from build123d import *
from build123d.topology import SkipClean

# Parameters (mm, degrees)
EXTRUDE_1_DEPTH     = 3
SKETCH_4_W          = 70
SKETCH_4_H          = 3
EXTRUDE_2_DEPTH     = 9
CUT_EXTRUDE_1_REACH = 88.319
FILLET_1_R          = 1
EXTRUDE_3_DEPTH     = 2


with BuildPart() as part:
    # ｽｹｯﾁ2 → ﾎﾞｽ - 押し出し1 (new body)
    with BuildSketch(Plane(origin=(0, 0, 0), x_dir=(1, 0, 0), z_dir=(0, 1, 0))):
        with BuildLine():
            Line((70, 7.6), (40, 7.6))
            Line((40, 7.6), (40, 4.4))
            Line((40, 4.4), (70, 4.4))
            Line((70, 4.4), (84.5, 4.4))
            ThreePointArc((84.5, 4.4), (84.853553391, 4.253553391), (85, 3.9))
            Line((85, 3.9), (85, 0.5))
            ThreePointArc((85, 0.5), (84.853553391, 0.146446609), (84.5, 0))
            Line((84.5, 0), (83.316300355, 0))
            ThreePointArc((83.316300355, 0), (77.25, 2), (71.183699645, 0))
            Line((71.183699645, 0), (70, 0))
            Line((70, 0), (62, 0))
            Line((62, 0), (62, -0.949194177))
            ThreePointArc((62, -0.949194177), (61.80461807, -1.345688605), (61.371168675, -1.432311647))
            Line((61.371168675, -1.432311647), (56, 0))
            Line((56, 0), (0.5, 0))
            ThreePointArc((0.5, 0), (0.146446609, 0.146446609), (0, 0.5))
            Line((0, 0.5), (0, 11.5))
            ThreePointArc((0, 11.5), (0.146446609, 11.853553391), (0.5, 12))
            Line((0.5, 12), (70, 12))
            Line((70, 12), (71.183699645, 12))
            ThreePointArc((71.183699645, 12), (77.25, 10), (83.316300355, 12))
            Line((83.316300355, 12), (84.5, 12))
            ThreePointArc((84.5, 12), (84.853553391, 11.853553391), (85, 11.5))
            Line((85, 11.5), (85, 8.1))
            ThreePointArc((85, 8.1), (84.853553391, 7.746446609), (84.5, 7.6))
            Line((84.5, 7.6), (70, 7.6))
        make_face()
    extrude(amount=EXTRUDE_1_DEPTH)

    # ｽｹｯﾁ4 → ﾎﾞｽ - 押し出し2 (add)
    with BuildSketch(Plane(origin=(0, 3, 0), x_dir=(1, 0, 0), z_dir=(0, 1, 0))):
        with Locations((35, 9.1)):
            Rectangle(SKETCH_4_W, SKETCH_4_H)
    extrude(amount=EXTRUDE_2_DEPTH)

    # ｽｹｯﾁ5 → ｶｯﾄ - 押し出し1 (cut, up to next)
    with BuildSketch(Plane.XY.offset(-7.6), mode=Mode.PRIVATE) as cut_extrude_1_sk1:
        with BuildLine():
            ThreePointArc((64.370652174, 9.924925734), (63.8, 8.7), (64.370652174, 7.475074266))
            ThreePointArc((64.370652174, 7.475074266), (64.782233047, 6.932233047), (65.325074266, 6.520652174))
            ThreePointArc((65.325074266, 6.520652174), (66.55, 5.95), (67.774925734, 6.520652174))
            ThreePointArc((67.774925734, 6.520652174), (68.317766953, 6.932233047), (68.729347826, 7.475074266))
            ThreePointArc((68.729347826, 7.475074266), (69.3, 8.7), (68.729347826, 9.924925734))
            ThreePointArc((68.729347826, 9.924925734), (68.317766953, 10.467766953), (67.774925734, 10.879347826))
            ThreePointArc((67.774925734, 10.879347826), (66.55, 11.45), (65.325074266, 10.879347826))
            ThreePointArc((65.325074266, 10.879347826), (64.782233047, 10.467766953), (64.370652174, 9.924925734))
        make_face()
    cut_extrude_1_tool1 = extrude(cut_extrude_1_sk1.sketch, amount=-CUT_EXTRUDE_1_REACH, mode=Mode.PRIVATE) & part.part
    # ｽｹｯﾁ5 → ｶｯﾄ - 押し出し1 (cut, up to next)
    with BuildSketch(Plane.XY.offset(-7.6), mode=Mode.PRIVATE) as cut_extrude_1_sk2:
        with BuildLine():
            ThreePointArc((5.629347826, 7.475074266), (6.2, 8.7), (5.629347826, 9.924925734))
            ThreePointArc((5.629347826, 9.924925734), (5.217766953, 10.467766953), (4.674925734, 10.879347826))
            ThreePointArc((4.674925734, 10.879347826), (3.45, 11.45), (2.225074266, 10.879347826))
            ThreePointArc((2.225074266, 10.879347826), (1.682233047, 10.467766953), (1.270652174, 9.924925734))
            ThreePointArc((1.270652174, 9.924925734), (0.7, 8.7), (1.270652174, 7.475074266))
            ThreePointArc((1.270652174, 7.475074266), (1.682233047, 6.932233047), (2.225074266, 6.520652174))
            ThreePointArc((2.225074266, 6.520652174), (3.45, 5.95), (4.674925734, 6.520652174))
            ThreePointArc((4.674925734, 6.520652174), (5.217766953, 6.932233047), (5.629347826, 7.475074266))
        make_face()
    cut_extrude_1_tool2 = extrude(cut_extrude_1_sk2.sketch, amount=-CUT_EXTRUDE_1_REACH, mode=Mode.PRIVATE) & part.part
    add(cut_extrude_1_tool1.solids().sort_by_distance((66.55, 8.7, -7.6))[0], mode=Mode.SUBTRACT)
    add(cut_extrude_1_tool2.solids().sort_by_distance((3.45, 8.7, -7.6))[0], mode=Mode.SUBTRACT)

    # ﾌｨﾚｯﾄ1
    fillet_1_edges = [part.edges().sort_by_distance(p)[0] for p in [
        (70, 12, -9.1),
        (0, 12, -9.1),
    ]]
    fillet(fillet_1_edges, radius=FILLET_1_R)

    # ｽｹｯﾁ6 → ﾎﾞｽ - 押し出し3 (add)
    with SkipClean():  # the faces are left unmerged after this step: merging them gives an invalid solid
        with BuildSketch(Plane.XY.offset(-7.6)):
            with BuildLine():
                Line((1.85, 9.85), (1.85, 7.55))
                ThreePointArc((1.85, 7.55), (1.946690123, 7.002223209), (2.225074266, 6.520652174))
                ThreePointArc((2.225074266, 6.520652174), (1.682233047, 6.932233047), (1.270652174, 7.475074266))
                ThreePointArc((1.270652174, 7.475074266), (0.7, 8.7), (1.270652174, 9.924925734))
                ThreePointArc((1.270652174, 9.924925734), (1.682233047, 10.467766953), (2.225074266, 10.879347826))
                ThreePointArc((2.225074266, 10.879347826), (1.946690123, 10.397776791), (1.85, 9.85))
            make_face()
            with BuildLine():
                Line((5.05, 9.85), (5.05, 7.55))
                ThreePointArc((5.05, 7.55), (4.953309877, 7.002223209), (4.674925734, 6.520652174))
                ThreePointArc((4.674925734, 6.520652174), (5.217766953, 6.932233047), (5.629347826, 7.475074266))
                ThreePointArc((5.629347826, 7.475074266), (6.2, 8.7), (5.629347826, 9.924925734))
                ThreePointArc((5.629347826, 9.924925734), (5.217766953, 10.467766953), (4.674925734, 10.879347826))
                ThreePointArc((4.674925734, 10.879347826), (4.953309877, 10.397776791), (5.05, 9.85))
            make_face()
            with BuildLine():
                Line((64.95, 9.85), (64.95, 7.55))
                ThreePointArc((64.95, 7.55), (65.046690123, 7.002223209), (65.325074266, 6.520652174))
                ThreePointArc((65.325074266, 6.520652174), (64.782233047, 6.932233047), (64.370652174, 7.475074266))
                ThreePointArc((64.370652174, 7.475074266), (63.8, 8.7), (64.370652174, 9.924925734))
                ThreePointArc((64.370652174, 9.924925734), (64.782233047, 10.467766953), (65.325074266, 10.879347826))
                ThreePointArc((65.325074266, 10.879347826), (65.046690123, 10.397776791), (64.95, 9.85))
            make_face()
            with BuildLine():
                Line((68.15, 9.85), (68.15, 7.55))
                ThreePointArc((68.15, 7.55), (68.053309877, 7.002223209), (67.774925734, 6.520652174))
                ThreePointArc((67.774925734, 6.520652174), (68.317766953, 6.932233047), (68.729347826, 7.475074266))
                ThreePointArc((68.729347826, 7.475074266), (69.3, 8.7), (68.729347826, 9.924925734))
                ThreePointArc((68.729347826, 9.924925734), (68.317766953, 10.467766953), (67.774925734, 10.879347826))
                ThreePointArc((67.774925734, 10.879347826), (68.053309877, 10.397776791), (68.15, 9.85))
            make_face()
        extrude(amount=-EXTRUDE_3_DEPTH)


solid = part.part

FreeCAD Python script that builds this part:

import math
import FreeCAD as App
import Part
import Sketcher
Q = App.Units.Quantity


def edges_at(feature, points):
    """Names of the edges that pass closest to the given points."""
    edges = feature.Shape.Edges
    near = lambda p: min(range(len(edges)), key=lambda i: edges[i].distToShape(Part.Vertex(*p))[0])
    return sorted({f"Edge{near(p) + 1}" for p in points})


def add_polygon(sketch, points):
    """Adds a closed chain of lines whose ends are joined by coincident constraints."""
    first, n = sketch.GeometryCount, len(points)
    for a, b in zip(points, points[1:] + points[:1]):
        sketch.addGeometry(Part.LineSegment(App.Vector(*a, 0), App.Vector(*b, 0)), False)
    for i in range(n):
        sketch.addConstraint(Sketcher.Constraint("Coincident", first + i, 2, first + (i + 1) % n, 1))

doc = App.newDocument("Part")
body = doc.addObject("PartDesign::Body", "Body")

# Sketch on XZ plane
sketch1 = body.newObject("Sketcher::SketchObject", "Sketch")
sketch1.AttachmentSupport = (doc.getObject("XZ_Plane"), [""])
sketch1.MapMode = "FlatFace"
sketch1.addGeometry(Part.LineSegment(App.Vector(40, -4.4, 0), App.Vector(40, -7.6, 0)), False)
sketch1.addGeometry(Part.LineSegment(App.Vector(40, -7.6, 0), App.Vector(84.5, -7.6, 0)), False)
sketch1.addGeometry(Part.ArcOfCircle(Part.Circle(App.Vector(84.5, -8.1, 0), App.Vector(0, 0, 1), 0.5), math.radians(0), math.radians(90)), False)
sketch1.addGeometry(Part.LineSegment(App.Vector(85, -8.1, 0), App.Vector(85, -11.5, 0)), False)
sketch1.addGeometry(Part.ArcOfCircle(Part.Circle(App.Vector(84.5, -11.5, 0), App.Vector(0, 0, 1), 0.5), math.radians(-90), math.radians(0)), False)
sketch1.addGeometry(Part.LineSegment(App.Vector(84.5, -12, 0), App.Vector(83.32, -12, 0)), False)
sketch1.addGeometry(Part.ArcOfCircle(Part.Circle(App.Vector(77.25, -20.2, 0), App.Vector(0, 0, 1), 10.2), math.radians(54), math.radians(126)), False)
sketch1.addGeometry(Part.LineSegment(App.Vector(71.18, -12, 0), App.Vector(0.5, -12, 0)), False)
sketch1.addGeometry(Part.ArcOfCircle(Part.Circle(App.Vector(0.5, -11.5, 0), App.Vector(0, 0, 1), 0.5), math.radians(180), math.radians(270)), False)
sketch1.addGeometry(Part.LineSegment(App.Vector(0, -11.5, 0), App.Vector(0, -0.5, 0)), False)
sketch1.addGeometry(Part.ArcOfCircle(Part.Circle(App.Vector(0.5, -0.5, 0), App.Vector(0, 0, 1), 0.5), math.radians(90), math.radians(180)), False)
sketch1.addGeometry(Part.LineSegment(App.Vector(0.5, 0, 0), App.Vector(56, 0, 0)), False)
sketch1.addGeometry(Part.LineSegment(App.Vector(56, 0, 0), App.Vector(61.37, 1.43, 0)), False)
sketch1.addGeometry(Part.ArcOfCircle(Part.Circle(App.Vector(61.5, 0.95, 0), App.Vector(0, 0, 1), 0.5), math.radians(0), math.radians(105)), False)
sketch1.addGeometry(Part.LineSegment(App.Vector(62, 0.95, 0), App.Vector(62, 0, 0)), False)
sketch1.addGeometry(Part.LineSegment(App.Vector(62, 0, 0), App.Vector(71.18, 0, 0)), False)
sketch1.addGeometry(Part.ArcOfCircle(Part.Circle(App.Vector(77.25, 8.2, 0), App.Vector(0, 0, 1), 10.2), math.radians(-126), math.radians(-54)), False)
sketch1.addGeometry(Part.LineSegment(App.Vector(83.32, 0, 0), App.Vector(84.5, 0, 0)), False)
sketch1.addGeometry(Part.ArcOfCircle(Part.Circle(App.Vector(84.5, -0.5, 0), App.Vector(0, 0, 1), 0.5), math.radians(0), math.radians(90)), False)
sketch1.addGeometry(Part.LineSegment(App.Vector(85, -0.5, 0), App.Vector(85, -3.9, 0)), False)
sketch1.addGeometry(Part.ArcOfCircle(Part.Circle(App.Vector(84.5, -3.9, 0), App.Vector(0, 0, 1), 0.5), math.radians(-90), math.radians(0)), False)
sketch1.addGeometry(Part.LineSegment(App.Vector(84.5, -4.4, 0), App.Vector(40, -4.4, 0)), False)
sketch1.addConstraint(Sketcher.Constraint("Coincident", 0, 2, 1, 1))
sketch1.addConstraint(Sketcher.Constraint("Tangent", 1, 2, 2, 2))
sketch1.addConstraint(Sketcher.Constraint("Tangent", 2, 1, 3, 1))
sketch1.addConstraint(Sketcher.Constraint("Tangent", 3, 2, 4, 2))
sketch1.addConstraint(Sketcher.Constraint("Tangent", 4, 1, 5, 1))
sketch1.addConstraint(Sketcher.Constraint("Coincident", 5, 2, 6, 1))
sketch1.addConstraint(Sketcher.Constraint("Coincident", 6, 2, 7, 1))
sketch1.addConstraint(Sketcher.Constraint("Tangent", 7, 2, 8, 2))
sketch1.addConstraint(Sketcher.Constraint("Tangent", 8, 1, 9, 1))
sketch1.addConstraint(Sketcher.Constraint("Tangent", 9, 2, 10, 2))
sketch1.addConstraint(Sketcher.Constraint("Tangent", 10, 1, 11, 1))
sketch1.addConstraint(Sketcher.Constraint("Coincident", 11, 2, 12, 1))
sketch1.addConstraint(Sketcher.Constraint("Tangent", 12, 2, 13, 2))
sketch1.addConstraint(Sketcher.Constraint("Tangent", 13, 1, 14, 1))
sketch1.addConstraint(Sketcher.Constraint("Coincident", 14, 2, 15, 1))
sketch1.addConstraint(Sketcher.Constraint("Coincident", 15, 2, 16, 1))
sketch1.addConstraint(Sketcher.Constraint("Coincident", 16, 2, 17, 1))
sketch1.addConstraint(Sketcher.Constraint("Tangent", 17, 2, 18, 2))
sketch1.addConstraint(Sketcher.Constraint("Tangent", 18, 1, 19, 1))
sketch1.addConstraint(Sketcher.Constraint("Tangent", 19, 2, 20, 2))
sketch1.addConstraint(Sketcher.Constraint("Tangent", 20, 1, 21, 1))
sketch1.addConstraint(Sketcher.Constraint("Coincident", 21, 2, 0, 1))
sketch1.addConstraint(Sketcher.Constraint("Vertical", 0))
sketch1.addConstraint(Sketcher.Constraint("Horizontal", 1))
sketch1.addConstraint(Sketcher.Constraint("Vertical", 3))
sketch1.addConstraint(Sketcher.Constraint("Horizontal", 5))
sketch1.addConstraint(Sketcher.Constraint("Horizontal", 7))
sketch1.addConstraint(Sketcher.Constraint("Vertical", 9))
sketch1.addConstraint(Sketcher.Constraint("Horizontal", 11))
sketch1.addConstraint(Sketcher.Constraint("Vertical", 14))
sketch1.addConstraint(Sketcher.Constraint("Horizontal", 15))
sketch1.addConstraint(Sketcher.Constraint("Horizontal", 17))
sketch1.addConstraint(Sketcher.Constraint("Vertical", 19))
sketch1.addConstraint(Sketcher.Constraint("Horizontal", 21))
sketch1.addConstraint(Sketcher.Constraint("Equal", 2, 4))
sketch1.addConstraint(Sketcher.Constraint("Equal", 4, 8))
sketch1.addConstraint(Sketcher.Constraint("Equal", 8, 10))
sketch1.addConstraint(Sketcher.Constraint("Equal", 10, 13))
sketch1.addConstraint(Sketcher.Constraint("Equal", 6, 16))
sketch1.addConstraint(Sketcher.Constraint("Equal", 13, 18))
sketch1.addConstraint(Sketcher.Constraint("Equal", 18, 20))
sketch1.addConstraint(Sketcher.Constraint("PointOnObject", 8, 1, -2))
sketch1.addConstraint(Sketcher.Constraint("PointOnObject", 10, 1, -1))
sketch1.addConstraint(Sketcher.Constraint("PointOnObject", 14, 2, -1))
sketch1.addConstraint(Sketcher.Constraint("PointOnObject", 16, 2, -1))
sketch1.addConstraint(Sketcher.Constraint("Horizontal", 4, 3, 8, 3))
sketch1.addConstraint(Sketcher.Constraint("Vertical", 6, 3, 16, 3))
sketch1.addConstraint(Sketcher.Constraint("Vertical", 4, 3, 18, 3))
sketch1.addConstraint(Sketcher.Constraint("Vertical", 6, 2, 15, 2))
sketch1.addConstraint(Sketcher.Constraint("Equal", 3, 19))
sketch1.addConstraint(Sketcher.Constraint("Radius", 2, Q("0.5 mm")))
sketch1.addConstraint(Sketcher.Constraint("Radius", 6, Q("10.2 mm")))
sketch1.addConstraint(Sketcher.Constraint("DistanceY", 9, 1, 9, 2, Q("11 mm")))
sketch1.addConstraint(Sketcher.Constraint("DistanceX", 1, 1, 1, 2, Q("44.5 mm")))
sketch1.addConstraint(Sketcher.Constraint("DistanceX", 11, 1, 11, 2, Q("55.5 mm")))
sketch1.addConstraint(Sketcher.Constraint("DistanceY", 0, 2, 0, 1, Q("3.2 mm")))
sketch1.addConstraint(Sketcher.Constraint("DistanceX", -1, 1, 0, 2, Q("40 mm")))
sketch1.addConstraint(Sketcher.Constraint("DistanceX", -1, 1, 13, 1, Q("62 mm")))
sketch1.addConstraint(Sketcher.Constraint("DistanceY", 6, 3, -1, 1, Q("20.2 mm")))
sketch1.addConstraint(Sketcher.Constraint("DistanceX", -1, 1, 6, 3, Q("77.25 mm")))
sketch1.addConstraint(Sketcher.Constraint("DistanceY", 14, 2, 14, 1, Q("0.949194 mm")))
pad1 = body.newObject("PartDesign::Pad", "Pad")
pad1.Profile = sketch1
pad1.Length = 3
pad1.Reversed = True

# Sketch on XZ plane
sketch2 = body.newObject("Sketcher::SketchObject", "Sketch001")
sketch2.AttachmentSupport = (doc.getObject("XZ_Plane"), [""])
sketch2.MapMode = "FlatFace"
sketch2.AttachmentOffset = App.Placement(App.Vector(0, 0, -3), App.Rotation())
add_polygon(sketch2, [(0, -10.6), (0, -7.6), (70, -7.6), (70, -10.6)])  # lines 0-3
sketch2.addConstraint(Sketcher.Constraint("Vertical", 0))
sketch2.addConstraint(Sketcher.Constraint("Horizontal", 1))
sketch2.addConstraint(Sketcher.Constraint("Vertical", 2))
sketch2.addConstraint(Sketcher.Constraint("Horizontal", 3))
sketch2.addConstraint(Sketcher.Constraint("PointOnObject", 0, 2, -2))
sketch2.addConstraint(Sketcher.Constraint("DistanceX", 1, 1, 1, 2, Q("70 mm")))
sketch2.addConstraint(Sketcher.Constraint("DistanceY", 0, 1, 0, 2, Q("3 mm")))
sketch2.addConstraint(Sketcher.Constraint("DistanceY", 0, 2, -1, 1, Q("7.6 mm")))
pad2 = body.newObject("PartDesign::Pad", "Pad001")
pad2.Profile = sketch2
pad2.Length = 9
pad2.Reversed = True

# Sketch on XY plane
sketch3 = body.newObject("Sketcher::SketchObject", "Sketch002")
sketch3.AttachmentSupport = (doc.getObject("XY_Plane"), [""])
sketch3.MapMode = "FlatFace"
sketch3.AttachmentOffset = App.Placement(App.Vector(0, 0, -7.6), App.Rotation())
sketch3.addGeometry(Part.ArcOfCircle(Part.Circle(App.Vector(65.4, 8.7, 0), App.Vector(0, 0, 1), 1.6), math.radians(130), math.radians(230)), False)
sketch3.addGeometry(Part.ArcOfCircle(Part.Circle(App.Vector(66.6, 8.7, 0), App.Vector(0, 0, 1), 2.5), math.radians(-151), math.radians(-119)), False)
sketch3.addGeometry(Part.ArcOfCircle(Part.Circle(App.Vector(66.5, 7.6, 0), App.Vector(0, 0, 1), 1.6), math.radians(-140), math.radians(-40)), False)
sketch3.addGeometry(Part.ArcOfCircle(Part.Circle(App.Vector(66.5, 8.7, 0), App.Vector(0, 0, 1), 2.5), math.radians(-61), math.radians(-29)), False)
sketch3.addGeometry(Part.ArcOfCircle(Part.Circle(App.Vector(67.7, 8.7, 0), App.Vector(0, 0, 1), 1.6), math.radians(-50), math.radians(50)), False)
sketch3.addGeometry(Part.ArcOfCircle(Part.Circle(App.Vector(66.5, 8.7, 0), App.Vector(0, 0, 1), 2.5), math.radians(29), math.radians(61)), False)
sketch3.addGeometry(Part.ArcOfCircle(Part.Circle(App.Vector(66.5, 9.8, 0), App.Vector(0, 0, 1), 1.6), math.radians(40), math.radians(140)), False)
sketch3.addGeometry(Part.ArcOfCircle(Part.Circle(App.Vector(66.6, 8.7, 0), App.Vector(0, 0, 1), 2.5), math.radians(119), math.radians(151)), False)
sketch3.addConstraint(Sketcher.Constraint("Coincident", 0, 2, 1, 1))
sketch3.addConstraint(Sketcher.Constraint("Coincident", 1, 2, 2, 1))
sketch3.addConstraint(Sketcher.Constraint("Coincident", 2, 2, 3, 1))
sketch3.addConstraint(Sketcher.Constraint("Coincident", 3, 2, 4, 1))
sketch3.addConstraint(Sketcher.Constraint("Coincident", 4, 2, 5, 1))
sketch3.addConstraint(Sketcher.Constraint("Coincident", 5, 2, 6, 1))
sketch3.addConstraint(Sketcher.Constraint("Coincident", 6, 2, 7, 1))
sketch3.addConstraint(Sketcher.Constraint("Coincident", 7, 2, 0, 1))
sketch3.addConstraint(Sketcher.Constraint("Coincident", 3, 3, 1, 3))
sketch3.addConstraint(Sketcher.Constraint("Coincident", 5, 3, 1, 3))
sketch3.addConstraint(Sketcher.Constraint("Coincident", 7, 3, 1, 3))
sketch3.addConstraint(Sketcher.Constraint("Equal", 0, 2))
sketch3.addConstraint(Sketcher.Constraint("Equal", 1, 3))
sketch3.addConstraint(Sketcher.Constraint("Equal", 2, 4))
sketch3.addConstraint(Sketcher.Constraint("Equal", 3, 5))
sketch3.addConstraint(Sketcher.Constraint("Equal", 4, 6))
sketch3.addConstraint(Sketcher.Constraint("Equal", 5, 7))
sketch3.addConstraint(Sketcher.Constraint("Horizontal", 0, 3, 1, 3))
sketch3.addConstraint(Sketcher.Constraint("Horizontal", 3, 3, 4, 3))
sketch3.addConstraint(Sketcher.Constraint("Horizontal", 1, 2, 2, 2))
sketch3.addConstraint(Sketcher.Constraint("Horizontal", 0, 2, 3, 2))
sketch3.addConstraint(Sketcher.Constraint("Horizontal", 5, 2, 6, 2))
sketch3.addConstraint(Sketcher.Constraint("Vertical", 2, 2, 5, 2))
sketch3.addConstraint(Sketcher.Constraint("Radius", 0, Q("1.6 mm")))
sketch3.addConstraint(Sketcher.Constraint("Radius", 1, Q("2.5 mm")))
sketch3.addConstraint(Sketcher.Constraint("DistanceX", -1, 1, 0, 3, Q("65.4 mm")))
sketch3.addConstraint(Sketcher.Constraint("DistanceY", -1, 1, 0, 3, Q("8.7 mm")))
sketch3.addConstraint(Sketcher.Constraint("DistanceX", -1, 1, 4, 3, Q("67.7 mm")))
sketch3.addConstraint(Sketcher.Constraint("DistanceY", -1, 1, 2, 3, Q("7.55 mm")))
pocket1 = body.newObject("PartDesign::Pocket", "Pocket")
pocket1.Profile = sketch3
pocket1.Type = "UpToFirst"

# Sketch on XY plane
sketch4 = body.newObject("Sketcher::SketchObject", "Sketch003")
sketch4.AttachmentSupport = (doc.getObject("XY_Plane"), [""])
sketch4.MapMode = "FlatFace"
sketch4.AttachmentOffset = App.Placement(App.Vector(0, 0, -7.6), App.Rotation())
sketch4.addGeometry(Part.ArcOfCircle(Part.Circle(App.Vector(4.6, 8.7, 0), App.Vector(0, 0, 1), 1.6), math.radians(-50), math.radians(50)), False)
sketch4.addGeometry(Part.ArcOfCircle(Part.Circle(App.Vector(3.4, 8.7, 0), App.Vector(0, 0, 1), 2.5), math.radians(29), math.radians(61)), False)
sketch4.addGeometry(Part.ArcOfCircle(Part.Circle(App.Vector(3.5, 9.8, 0), App.Vector(0, 0, 1), 1.6), math.radians(40), math.radians(140)), False)
sketch4.addGeometry(Part.ArcOfCircle(Part.Circle(App.Vector(3.5, 8.7, 0), App.Vector(0, 0, 1), 2.5), math.radians(119), math.radians(151)), False)
sketch4.addGeometry(Part.ArcOfCircle(Part.Circle(App.Vector(2.3, 8.7, 0), App.Vector(0, 0, 1), 1.6), math.radians(130), math.radians(230)), False)
sketch4.addGeometry(Part.ArcOfCircle(Part.Circle(App.Vector(3.5, 8.7, 0), App.Vector(0, 0, 1), 2.5), math.radians(-151), math.radians(-119)), False)
sketch4.addGeometry(Part.ArcOfCircle(Part.Circle(App.Vector(3.5, 7.6, 0), App.Vector(0, 0, 1), 1.6), math.radians(-140), math.radians(-40)), False)
sketch4.addGeometry(Part.ArcOfCircle(Part.Circle(App.Vector(3.4, 8.7, 0), App.Vector(0, 0, 1), 2.5), math.radians(-61), math.radians(-29)), False)
sketch4.addConstraint(Sketcher.Constraint("Coincident", 0, 2, 1, 1))
sketch4.addConstraint(Sketcher.Constraint("Coincident", 1, 2, 2, 1))
sketch4.addConstraint(Sketcher.Constraint("Coincident", 2, 2, 3, 1))
sketch4.addConstraint(Sketcher.Constraint("Coincident", 3, 2, 4, 1))
sketch4.addConstraint(Sketcher.Constraint("Coincident", 4, 2, 5, 1))
sketch4.addConstraint(Sketcher.Constraint("Coincident", 5, 2, 6, 1))
sketch4.addConstraint(Sketcher.Constraint("Coincident", 6, 2, 7, 1))
sketch4.addConstraint(Sketcher.Constraint("Coincident", 7, 2, 0, 1))
sketch4.addConstraint(Sketcher.Constraint("Coincident", 3, 3, 1, 3))
sketch4.addConstraint(Sketcher.Constraint("Coincident", 5, 3, 1, 3))
sketch4.addConstraint(Sketcher.Constraint("Coincident", 7, 3, 1, 3))
sketch4.addConstraint(Sketcher.Constraint("Equal", 0, 2))
sketch4.addConstraint(Sketcher.Constraint("Equal", 1, 3))
sketch4.addConstraint(Sketcher.Constraint("Equal", 2, 4))
sketch4.addConstraint(Sketcher.Constraint("Equal", 3, 5))
sketch4.addConstraint(Sketcher.Constraint("Equal", 4, 6))
sketch4.addConstraint(Sketcher.Constraint("Equal", 5, 7))
sketch4.addConstraint(Sketcher.Constraint("Horizontal", 0, 3, 1, 3))
sketch4.addConstraint(Sketcher.Constraint("Horizontal", 3, 3, 4, 3))
sketch4.addConstraint(Sketcher.Constraint("Horizontal", 1, 2, 2, 2))
sketch4.addConstraint(Sketcher.Constraint("Horizontal", 0, 2, 3, 2))
sketch4.addConstraint(Sketcher.Constraint("Horizontal", 5, 2, 6, 2))
sketch4.addConstraint(Sketcher.Constraint("Vertical", 2, 2, 5, 2))
sketch4.addConstraint(Sketcher.Constraint("Radius", 0, Q("1.6 mm")))
sketch4.addConstraint(Sketcher.Constraint("Radius", 1, Q("2.5 mm")))
sketch4.addConstraint(Sketcher.Constraint("DistanceX", -1, 1, 0, 3, Q("4.6 mm")))
sketch4.addConstraint(Sketcher.Constraint("DistanceY", -1, 1, 0, 3, Q("8.7 mm")))
sketch4.addConstraint(Sketcher.Constraint("DistanceX", -1, 1, 4, 3, Q("2.3 mm")))
sketch4.addConstraint(Sketcher.Constraint("DistanceY", -1, 1, 2, 3, Q("9.85 mm")))
pocket2 = body.newObject("PartDesign::Pocket", "Pocket001")
pocket2.Profile = sketch4
pocket2.Type = "UpToFirst"
doc.recompute()

fillet = body.newObject("PartDesign::Fillet", "Fillet")
fillet.Base = (pocket2, edges_at(pocket2, [(70, 12, -9.1), (0, 12, -9.1)]))
fillet.Radius = 1

# Sketch on XY plane
sketch5 = body.newObject("Sketcher::SketchObject", "Sketch004")
sketch5.AttachmentSupport = (doc.getObject("XY_Plane"), [""])
sketch5.MapMode = "FlatFace"
sketch5.AttachmentOffset = App.Placement(App.Vector(0, 0, -7.6), App.Rotation())
sketch5.addGeometry(Part.LineSegment(App.Vector(1.9, 7.5, 0), App.Vector(1.9, 9.8, 0)), False)
sketch5.addGeometry(Part.ArcOfCircle(Part.Circle(App.Vector(3.5, 9.8, 0), App.Vector(0, 0, 1), 1.6), math.radians(140), math.radians(180)), False)
sketch5.addGeometry(Part.ArcOfCircle(Part.Circle(App.Vector(3.5, 8.7, 0), App.Vector(0, 0, 1), 2.5), math.radians(119), math.radians(151)), False)
sketch5.addGeometry(Part.ArcOfCircle(Part.Circle(App.Vector(2.3, 8.7, 0), App.Vector(0, 0, 1), 1.6), math.radians(130), math.radians(230)), False)
sketch5.addGeometry(Part.ArcOfCircle(Part.Circle(App.Vector(3.5, 8.7, 0), App.Vector(0, 0, 1), 2.5), math.radians(-151), math.radians(-119)), False)
sketch5.addGeometry(Part.ArcOfCircle(Part.Circle(App.Vector(3.5, 7.6, 0), App.Vector(0, 0, 1), 1.6), math.radians(-180), math.radians(-140)), False)
sketch5.addGeometry(Part.LineSegment(App.Vector(5, 9.8, 0), App.Vector(5, 7.5, 0)), False)
sketch5.addGeometry(Part.ArcOfCircle(Part.Circle(App.Vector(3.4, 7.6, 0), App.Vector(0, 0, 1), 1.6), math.radians(-40), math.radians(0)), False)
sketch5.addGeometry(Part.ArcOfCircle(Part.Circle(App.Vector(3.4, 8.7, 0), App.Vector(0, 0, 1), 2.5), math.radians(-61), math.radians(-29)), False)
sketch5.addGeometry(Part.ArcOfCircle(Part.Circle(App.Vector(4.6, 8.7, 0), App.Vector(0, 0, 1), 1.6), math.radians(-50), math.radians(50)), False)
sketch5.addGeometry(Part.ArcOfCircle(Part.Circle(App.Vector(3.4, 8.7, 0), App.Vector(0, 0, 1), 2.5), math.radians(29), math.radians(61)), False)
sketch5.addGeometry(Part.ArcOfCircle(Part.Circle(App.Vector(3.4, 9.8, 0), App.Vector(0, 0, 1), 1.6), math.radians(0), math.radians(40)), False)
sketch5.addGeometry(Part.LineSegment(App.Vector(65, 7.5, 0), App.Vector(65, 9.8, 0)), False)
sketch5.addGeometry(Part.ArcOfCircle(Part.Circle(App.Vector(66.6, 9.8, 0), App.Vector(0, 0, 1), 1.6), math.radians(140), math.radians(180)), False)
sketch5.addGeometry(Part.ArcOfCircle(Part.Circle(App.Vector(66.6, 8.7, 0), App.Vector(0, 0, 1), 2.5), math.radians(119), math.radians(151)), False)
sketch5.addGeometry(Part.ArcOfCircle(Part.Circle(App.Vector(65.4, 8.7, 0), App.Vector(0, 0, 1), 1.6), math.radians(130), math.radians(230)), False)
sketch5.addGeometry(Part.ArcOfCircle(Part.Circle(App.Vector(66.6, 8.7, 0), App.Vector(0, 0, 1), 2.5), math.radians(-151), math.radians(-119)), False)
sketch5.addGeometry(Part.ArcOfCircle(Part.Circle(App.Vector(66.6, 7.6, 0), App.Vector(0, 0, 1), 1.6), math.radians(-180), math.radians(-140)), False)
sketch5.addGeometry(Part.LineSegment(App.Vector(68.2, 9.8, 0), App.Vector(68.2, 7.5, 0)), False)
sketch5.addGeometry(Part.ArcOfCircle(Part.Circle(App.Vector(66.5, 7.6, 0), App.Vector(0, 0, 1), 1.6), math.radians(-40), math.radians(0)), False)
sketch5.addGeometry(Part.ArcOfCircle(Part.Circle(App.Vector(66.5, 8.7, 0), App.Vector(0, 0, 1), 2.5), math.radians(-61), math.radians(-29)), False)
sketch5.addGeometry(Part.ArcOfCircle(Part.Circle(App.Vector(67.7, 8.7, 0), App.Vector(0, 0, 1), 1.6), math.radians(-50), math.radians(50)), False)
sketch5.addGeometry(Part.ArcOfCircle(Part.Circle(App.Vector(66.5, 8.7, 0), App.Vector(0, 0, 1), 2.5), math.radians(29), math.radians(61)), False)
sketch5.addGeometry(Part.ArcOfCircle(Part.Circle(App.Vector(66.5, 9.8, 0), App.Vector(0, 0, 1), 1.6), math.radians(0), math.radians(40)), False)
sketch5.addConstraint(Sketcher.Constraint("Tangent", 0, 2, 1, 2))
sketch5.addConstraint(Sketcher.Constraint("Coincident", 1, 1, 2, 1))
sketch5.addConstraint(Sketcher.Constraint("Coincident", 2, 2, 3, 1))
sketch5.addConstraint(Sketcher.Constraint("Coincident", 3, 2, 4, 1))
sketch5.addConstraint(Sketcher.Constraint("Coincident", 4, 2, 5, 2))
sketch5.addConstraint(Sketcher.Constraint("Tangent", 5, 1, 0, 1))
sketch5.addConstraint(Sketcher.Constraint("Tangent", 6, 2, 7, 2))
sketch5.addConstraint(Sketcher.Constraint("Coincident", 7, 1, 8, 1))
sketch5.addConstraint(Sketcher.Constraint("Coincident", 8, 2, 9, 1))
sketch5.addConstraint(Sketcher.Constraint("Coincident", 9, 2, 10, 1))
sketch5.addConstraint(Sketcher.Constraint("Coincident", 10, 2, 11, 2))
sketch5.addConstraint(Sketcher.Constraint("Tangent", 11, 1, 6, 1))
sketch5.addConstraint(Sketcher.Constraint("Tangent", 12, 2, 13, 2))
sketch5.addConstraint(Sketcher.Constraint("Coincident", 13, 1, 14, 1))
sketch5.addConstraint(Sketcher.Constraint("Coincident", 14, 2, 15, 1))
sketch5.addConstraint(Sketcher.Constraint("Coincident", 15, 2, 16, 1))
sketch5.addConstraint(Sketcher.Constraint("Coincident", 16, 2, 17, 2))
sketch5.addConstraint(Sketcher.Constraint("Tangent", 17, 1, 12, 1))
sketch5.addConstraint(Sketcher.Constraint("Tangent", 18, 2, 19, 2))
sketch5.addConstraint(Sketcher.Constraint("Coincident", 19, 1, 20, 1))
sketch5.addConstraint(Sketcher.Constraint("Coincident", 20, 2, 21, 1))
sketch5.addConstraint(Sketcher.Constraint("Coincident", 21, 2, 22, 1))
sketch5.addConstraint(Sketcher.Constraint("Coincident", 22, 2, 23, 2))
sketch5.addConstraint(Sketcher.Constraint("Tangent", 23, 1, 18, 1))
sketch5.addConstraint(Sketcher.Constraint("Vertical", 0))
sketch5.addConstraint(Sketcher.Constraint("Vertical", 6))
sketch5.addConstraint(Sketcher.Constraint("Vertical", 12))
sketch5.addConstraint(Sketcher.Constraint("Vertical", 18))
sketch5.addConstraint(Sketcher.Constraint("Coincident", 4, 3, 2, 3))
sketch5.addConstraint(Sketcher.Constraint("Coincident", 7, 3, 5, 3))
sketch5.addConstraint(Sketcher.Constraint("Coincident", 8, 3, 2, 3))
sketch5.addConstraint(Sketcher.Constraint("Coincident", 10, 3, 2, 3))
sketch5.addConstraint(Sketcher.Constraint("Coincident", 11, 3, 1, 3))
sketch5.addConstraint(Sketcher.Constraint("Coincident", 16, 3, 14, 3))
sketch5.addConstraint(Sketcher.Constraint("Coincident", 19, 3, 17, 3))
sketch5.addConstraint(Sketcher.Constraint("Coincident", 20, 3, 14, 3))
sketch5.addConstraint(Sketcher.Constraint("Coincident", 22, 3, 14, 3))
sketch5.addConstraint(Sketcher.Constraint("Coincident", 23, 3, 13, 3))
sketch5.addConstraint(Sketcher.Constraint("Equal", 1, 3))
sketch5.addConstraint(Sketcher.Constraint("Equal", 2, 4))
sketch5.addConstraint(Sketcher.Constraint("Equal", 3, 5))
sketch5.addConstraint(Sketcher.Constraint("Equal", 5, 7))
sketch5.addConstraint(Sketcher.Constraint("Equal", 4, 8))
sketch5.addConstraint(Sketcher.Constraint("Equal", 7, 9))
sketch5.addConstraint(Sketcher.Constraint("Equal", 8, 10))
sketch5.addConstraint(Sketcher.Constraint("Equal", 11, 13))
sketch5.addConstraint(Sketcher.Constraint("Equal", 10, 14))
sketch5.addConstraint(Sketcher.Constraint("Equal", 13, 15))
sketch5.addConstraint(Sketcher.Constraint("Equal", 14, 16))
sketch5.addConstraint(Sketcher.Constraint("Equal", 15, 17))
sketch5.addConstraint(Sketcher.Constraint("Equal", 17, 19))
sketch5.addConstraint(Sketcher.Constraint("Equal", 16, 20))
sketch5.addConstraint(Sketcher.Constraint("Equal", 19, 21))
sketch5.addConstraint(Sketcher.Constraint("Equal", 20, 22))
sketch5.addConstraint(Sketcher.Constraint("Horizontal", 2, 3, 3, 3))
sketch5.addConstraint(Sketcher.Constraint("Horizontal", 8, 3, 9, 3))
sketch5.addConstraint(Sketcher.Constraint("Horizontal", 11, 3, 13, 3))
sketch5.addConstraint(Sketcher.Constraint("Horizontal", 10, 3, 14, 3))
sketch5.addConstraint(Sketcher.Constraint("Horizontal", 14, 3, 15, 3))
sketch5.addConstraint(Sketcher.Constraint("Horizontal", 7, 3, 17, 3))
sketch5.addConstraint(Sketcher.Constraint("Horizontal", 20, 3, 21, 3))
sketch5.addConstraint(Sketcher.Constraint("Horizontal", 4, 2, 7, 1))
sketch5.addConstraint(Sketcher.Constraint("Horizontal", 3, 2, 8, 2))
sketch5.addConstraint(Sketcher.Constraint("Horizontal", 10, 2, 13, 1))
sketch5.addConstraint(Sketcher.Constraint("Horizontal", 9, 2, 14, 2))
sketch5.addConstraint(Sketcher.Constraint("Horizontal", 15, 2, 20, 2))
sketch5.addConstraint(Sketcher.Constraint("Vertical", 1, 1, 4, 2))
sketch5.addConstraint(Sketcher.Constraint("Radius", 1, Q("1.6 mm")))
sketch5.addConstraint(Sketcher.Constraint("Radius", 2, Q("2.5 mm")))
sketch5.addConstraint(Sketcher.Constraint("DistanceY", 0, 1, 0, 2, Q("2.3 mm")))
sketch5.addConstraint(Sketcher.Constraint("DistanceY", -1, 1, 2, 3, Q("8.7 mm")))
sketch5.addConstraint(Sketcher.Constraint("DistanceX", -1, 1, 3, 3, Q("2.3 mm")))
sketch5.addConstraint(Sketcher.Constraint("DistanceX", -1, 1, 9, 3, Q("4.6 mm")))
sketch5.addConstraint(Sketcher.Constraint("DistanceX", -1, 1, 15, 3, Q("65.4 mm")))
pad3 = body.newObject("PartDesign::Pad", "Pad002")
pad3.Profile = sketch5
pad3.Length = 2
pad3.Reversed = True

doc.recompute()
